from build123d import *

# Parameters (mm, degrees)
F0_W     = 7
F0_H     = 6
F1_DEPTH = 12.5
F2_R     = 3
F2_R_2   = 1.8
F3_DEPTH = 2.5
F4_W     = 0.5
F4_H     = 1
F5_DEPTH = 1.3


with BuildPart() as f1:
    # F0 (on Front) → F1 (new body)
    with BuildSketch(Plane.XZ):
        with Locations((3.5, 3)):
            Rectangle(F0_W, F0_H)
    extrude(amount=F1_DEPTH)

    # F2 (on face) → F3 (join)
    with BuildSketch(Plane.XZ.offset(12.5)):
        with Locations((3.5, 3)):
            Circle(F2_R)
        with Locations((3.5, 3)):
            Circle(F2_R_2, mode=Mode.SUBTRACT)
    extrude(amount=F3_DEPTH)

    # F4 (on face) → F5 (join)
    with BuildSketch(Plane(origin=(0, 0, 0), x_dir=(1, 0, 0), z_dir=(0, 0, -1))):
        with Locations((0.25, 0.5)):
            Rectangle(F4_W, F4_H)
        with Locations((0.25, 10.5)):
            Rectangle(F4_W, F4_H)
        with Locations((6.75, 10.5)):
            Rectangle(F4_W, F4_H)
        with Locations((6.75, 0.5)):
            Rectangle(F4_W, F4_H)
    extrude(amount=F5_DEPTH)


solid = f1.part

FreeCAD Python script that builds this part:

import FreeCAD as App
import Part
import Sketcher
from FreeCAD import Vector

doc = App.newDocument("Part")
params = doc.addObject("Spreadsheet::Sheet", "Params")
for row, (alias, value) in enumerate([
    ("sketch1_width", "7 mm"),
    ("sketch1_height", "6 mm"),
    ("pad1_length", "12.5 mm"),
    ("sketch2_diameter", "6 mm"),
    ("sketch2_diameter2", "3.6 mm"),
    ("pad2_length", "2.5 mm"),
    ("sketch3_height", "1 mm"),
    ("sketch3_width", "0.5 mm"),
    ("pad3_length", "1.3 mm"),
], start=1):
    params.set(f"A{row}", alias)
    params.set(f"B{row}", "=" + value)
    params.setAlias(f"B{row}", alias)

body = doc.addObject("PartDesign::Body", "Body")

# Sketch on XZ plane
sketch1 = body.newObject("Sketcher::SketchObject", "Sketch")
sketch1.AttachmentSupport = (doc.getObject("XZ_Plane"), [""])
sketch1.MapMode = "FlatFace"
sketch1.addGeometry([
    Part.LineSegment(Vector(0, 6, 0), Vector(0, 0, 0)),
    Part.LineSegment(Vector(0, 0, 0), Vector(7, 0, 0)),
    Part.LineSegment(Vector(7, 0, 0), Vector(7, 6, 0)),
    Part.LineSegment(Vector(7, 6, 0), Vector(0, 6, 0)),
], False)
sketch1.addConstraint([
    Sketcher.Constraint("Coincident", 0, 2, 1, 1),
    Sketcher.Constraint("Coincident", 1, 2, 2, 1),
    Sketcher.Constraint("Coincident", 2, 2, 3, 1),
    Sketcher.Constraint("Coincident", 3, 2, 0, 1),
    Sketcher.Constraint("Vertical", 0),
    Sketcher.Constraint("Horizontal", 1),
    Sketcher.Constraint("Vertical", 2),
    Sketcher.Constraint("Horizontal", 3),
    Sketcher.Constraint("Coincident", 0, 2, -1, 1),
    Sketcher.Constraint("DistanceX", 1, 1, 1, 2, 7.0),
    Sketcher.Constraint("DistanceY", 0, 2, 0, 1, 6.0),
])
sketch1.setExpression("Constraints[9]", "Params.sketch1_width")
sketch1.setExpression("Constraints[10]", "Params.sketch1_height")
pad1 = body.newObject("PartDesign::Pad", "Pad")
pad1.Profile = sketch1
pad1.setExpression("Length", "Params.pad1_length")

# Sketch on XZ plane
sketch2 = body.newObject("Sketcher::SketchObject", "Sketch001")
sketch2.AttachmentSupport = (doc.getObject("XZ_Plane"), [""])
sketch2.MapMode = "FlatFace"
sketch2.AttachmentOffset = App.Placement(Vector(0, 0, 12.5), App.Rotation())
sketch2.addGeometry([
    Part.Circle(Vector(3.5, 3, 0), Vector(0, 0, 1), 3),
    Part.Circle(Vector(3.5, 3, 0), Vector(0, 0, 1), 1.8),
], False)
sketch2.addConstraint([
    Sketcher.Constraint("Coincident", 1, 3, 0, 3),
    Sketcher.Constraint("Diameter", 0, 6.0),
    Sketcher.Constraint("Diameter", 1, 3.6),
    Sketcher.Constraint("DistanceY", -1, 1, 0, 3, 3.0),
    Sketcher.Constraint("DistanceX", -1, 1, 0, 3, 3.5),
])
sketch2.setExpression("Constraints[1]", "Params.sketch2_diameter")
sketch2.setExpression("Constraints[2]", "Params.sketch2_diameter2")
pad2 = body.newObject("PartDesign::Pad", "Pad001")
pad2.Profile = sketch2
pad2.setExpression("Length", "Params.pad2_length")

# Sketch on XY plane
sketch3 = body.newObject("Sketcher::SketchObject", "Sketch002")
sketch3.AttachmentSupport = (doc.getObject("XY_Plane"), [""])
sketch3.MapMode = "FlatFace"
sketch3.addGeometry([
    Part.LineSegment(Vector(0, -1, 0), Vector(0, 0, 0)),  # 0
    Part.LineSegment(Vector(0, 0, 0), Vector(0.5, 0, 0)),  # 1
    Part.LineSegment(Vector(0.5, 0, 0), Vector(0.5, -1, 0)),  # 2
    Part.LineSegment(Vector(0.5, -1, 0), Vector(0, -1, 0)),  # 3
    Part.LineSegment(Vector(0, -11, 0), Vector(0, -10, 0)),  # 4
    Part.LineSegment(Vector(0, -10, 0), Vector(0.5, -10, 0)),  # 5
    Part.LineSegment(Vector(0.5, -10, 0), Vector(0.5, -11, 0)),  # 6
    Part.LineSegment(Vector(0.5, -11, 0), Vector(0, -11, 0)),  # 7
    Part.LineSegment(Vector(6.5, -11, 0), Vector(6.5, -10, 0)),  # 8
    Part.LineSegment(Vector(6.5, -10, 0), Vector(7, -10, 0)),  # 9
    Part.LineSegment(Vector(7, -10, 0), Vector(7, -11, 0)),  # 10
    Part.LineSegment(Vector(7, -11, 0), Vector(6.5, -11, 0)),  # 11
    Part.LineSegment(Vector(6.5, -1, 0), Vector(6.5, 0, 0)),  # 12
    Part.LineSegment(Vector(6.5, 0, 0), Vector(7, 0, 0)),  # 13
    Part.LineSegment(Vector(7, 0, 0), Vector(7, -1, 0)),  # 14
    Part.LineSegment(Vector(7, -1, 0), Vector(6.5, -1, 0)),  # 15
], False)
sketch3.addConstraint([
    Sketcher.Constraint("Coincident", 0, 2, 1, 1),
    Sketcher.Constraint("Coincident", 1, 2, 2, 1),
    Sketcher.Constraint("Coincident", 2, 2, 3, 1),
    Sketcher.Constraint("Coincident", 3, 2, 0, 1),
    Sketcher.Constraint("Coincident", 4, 2, 5, 1),
    Sketcher.Constraint("Coincident", 5, 2, 6, 1),
    Sketcher.Constraint("Coincident", 6, 2, 7, 1),
    Sketcher.Constraint("Coincident", 7, 2, 4, 1),
    Sketcher.Constraint("Coincident", 8, 2, 9, 1),
    Sketcher.Constraint("Coincident", 9, 2, 10, 1),
    Sketcher.Constraint("Coincident", 10, 2, 11, 1),
    Sketcher.Constraint("Coincident", 11, 2, 8, 1),
    Sketcher.Constraint("Coincident", 12, 2, 13, 1),
    Sketcher.Constraint("Coincident", 13, 2, 14, 1),
    Sketcher.Constraint("Coincident", 14, 2, 15, 1),
    Sketcher.Constraint("Coincident", 15, 2, 12, 1),
    Sketcher.Constraint("Vertical", 0),
    Sketcher.Constraint("Horizontal", 1),
    Sketcher.Constraint("Vertical", 2),
    Sketcher.Constraint("Horizontal", 3),
    Sketcher.Constraint("Vertical", 4),
    Sketcher.Constraint("Horizontal", 5),
    Sketcher.Constraint("Vertical", 6),
    Sketcher.Constraint("Horizontal", 7),
    Sketcher.Constraint("Vertical", 8),
    Sketcher.Constraint("Horizontal", 9),
    Sketcher.Constraint("Vertical", 10),
    Sketcher.Constraint("Horizontal", 11),
    Sketcher.Constraint("Vertical", 12),
    Sketcher.Constraint("Horizontal", 13),
    Sketcher.Constraint("Vertical", 14),
    Sketcher.Constraint("Horizontal", 15),
    Sketcher.Constraint("Coincident", 0, 2, -1, 1),
    Sketcher.Constraint("PointOnObject", 4, 2, -2),
    Sketcher.Constraint("PointOnObject", 12, 2, -1),
    Sketcher.Constraint("Horizontal", 5, 2, 8, 2),
    Sketcher.Constraint("Horizontal", 7, 2, 10, 2),
    Sketcher.Constraint("Horizontal", 3, 2, 14, 2),
    Sketcher.Constraint("Vertical", 2, 2, 5, 2),
    Sketcher.Constraint("Vertical", 11, 2, 12, 2),
    Sketcher.Constraint("Vertical", 10, 2, 13, 2),
    Sketcher.Constraint("Equal", 7, 9),
    Sketcher.Constraint("Equal", 2, 4),
    Sketcher.Constraint("DistanceY", 0, 1, 0, 2, 1.0),
    Sketcher.Constraint("DistanceX", 1, 1, 1, 2, 0.5),
    Sketcher.Constraint("DistanceY", 4, 2, -1, 1, 10.0),
    Sketcher.Constraint("DistanceX", -1, 1, 9, 2, 7.0),
])
sketch3.setExpression("Constraints[43]", "Params.sketch3_height")
sketch3.setExpression("Constraints[44]", "Params.sketch3_width")
pad3 = body.newObject("PartDesign::Pad", "Pad002")
pad3.Profile = sketch3
pad3.setExpression("Length", "Params.pad3_length")
pad3.Reversed = True

doc.recompute()
